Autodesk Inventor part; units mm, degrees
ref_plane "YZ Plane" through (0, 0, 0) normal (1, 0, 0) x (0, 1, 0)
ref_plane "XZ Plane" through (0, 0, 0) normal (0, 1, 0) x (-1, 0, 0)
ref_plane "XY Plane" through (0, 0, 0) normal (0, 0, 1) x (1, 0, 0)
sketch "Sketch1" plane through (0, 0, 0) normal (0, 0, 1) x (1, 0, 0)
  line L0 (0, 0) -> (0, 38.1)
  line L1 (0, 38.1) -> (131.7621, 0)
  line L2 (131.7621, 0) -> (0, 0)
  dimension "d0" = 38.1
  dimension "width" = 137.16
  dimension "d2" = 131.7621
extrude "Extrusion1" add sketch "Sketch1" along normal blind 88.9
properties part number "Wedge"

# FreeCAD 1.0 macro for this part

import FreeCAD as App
import Part
import Sketcher

V = App.Vector
Q = App.Units.Quantity


def add_polygon(sketch, points):
    """Adds a closed chain of lines whose ends are joined by coincident constraints."""
    first, n = sketch.GeometryCount, len(points)
    for a, b in zip(points, points[1:] + points[:1]):
        sketch.addGeometry(Part.LineSegment(App.Vector(*a, 0), App.Vector(*b, 0)), False)
    for i in range(n):
        sketch.addConstraint(Sketcher.Constraint("Coincident", first + i, 2, first + (i + 1) % n, 1))

doc = App.newDocument("Part")
body = doc.addObject("PartDesign::Body", "Body")

sketch1 = body.newObject("Sketcher::SketchObject", "Sketch")
sketch1.AttachmentSupport = (doc.getObject("XY_Plane"), [""])
sketch1.MapMode = "FlatFace"
add_polygon(sketch1, [(0, 38), (0, 0), (132, 0)])
sketch1.addConstraint([
    Sketcher.Constraint("Vertical", 0),
    Sketcher.Constraint("Horizontal", 1),
    Sketcher.Constraint("Coincident", 0, 2, -1, 1),
    Sketcher.Constraint("DistanceY", 0, 2, 0, 1, Q("1.5 in")),
    Sketcher.Constraint("Distance", 2, Q("5.4 in")),
])
pad1 = body.newObject("PartDesign::Pad", "Pad")
pad1.Profile = sketch1
pad1.Length = Q("3.5 in")

doc.recompute()
